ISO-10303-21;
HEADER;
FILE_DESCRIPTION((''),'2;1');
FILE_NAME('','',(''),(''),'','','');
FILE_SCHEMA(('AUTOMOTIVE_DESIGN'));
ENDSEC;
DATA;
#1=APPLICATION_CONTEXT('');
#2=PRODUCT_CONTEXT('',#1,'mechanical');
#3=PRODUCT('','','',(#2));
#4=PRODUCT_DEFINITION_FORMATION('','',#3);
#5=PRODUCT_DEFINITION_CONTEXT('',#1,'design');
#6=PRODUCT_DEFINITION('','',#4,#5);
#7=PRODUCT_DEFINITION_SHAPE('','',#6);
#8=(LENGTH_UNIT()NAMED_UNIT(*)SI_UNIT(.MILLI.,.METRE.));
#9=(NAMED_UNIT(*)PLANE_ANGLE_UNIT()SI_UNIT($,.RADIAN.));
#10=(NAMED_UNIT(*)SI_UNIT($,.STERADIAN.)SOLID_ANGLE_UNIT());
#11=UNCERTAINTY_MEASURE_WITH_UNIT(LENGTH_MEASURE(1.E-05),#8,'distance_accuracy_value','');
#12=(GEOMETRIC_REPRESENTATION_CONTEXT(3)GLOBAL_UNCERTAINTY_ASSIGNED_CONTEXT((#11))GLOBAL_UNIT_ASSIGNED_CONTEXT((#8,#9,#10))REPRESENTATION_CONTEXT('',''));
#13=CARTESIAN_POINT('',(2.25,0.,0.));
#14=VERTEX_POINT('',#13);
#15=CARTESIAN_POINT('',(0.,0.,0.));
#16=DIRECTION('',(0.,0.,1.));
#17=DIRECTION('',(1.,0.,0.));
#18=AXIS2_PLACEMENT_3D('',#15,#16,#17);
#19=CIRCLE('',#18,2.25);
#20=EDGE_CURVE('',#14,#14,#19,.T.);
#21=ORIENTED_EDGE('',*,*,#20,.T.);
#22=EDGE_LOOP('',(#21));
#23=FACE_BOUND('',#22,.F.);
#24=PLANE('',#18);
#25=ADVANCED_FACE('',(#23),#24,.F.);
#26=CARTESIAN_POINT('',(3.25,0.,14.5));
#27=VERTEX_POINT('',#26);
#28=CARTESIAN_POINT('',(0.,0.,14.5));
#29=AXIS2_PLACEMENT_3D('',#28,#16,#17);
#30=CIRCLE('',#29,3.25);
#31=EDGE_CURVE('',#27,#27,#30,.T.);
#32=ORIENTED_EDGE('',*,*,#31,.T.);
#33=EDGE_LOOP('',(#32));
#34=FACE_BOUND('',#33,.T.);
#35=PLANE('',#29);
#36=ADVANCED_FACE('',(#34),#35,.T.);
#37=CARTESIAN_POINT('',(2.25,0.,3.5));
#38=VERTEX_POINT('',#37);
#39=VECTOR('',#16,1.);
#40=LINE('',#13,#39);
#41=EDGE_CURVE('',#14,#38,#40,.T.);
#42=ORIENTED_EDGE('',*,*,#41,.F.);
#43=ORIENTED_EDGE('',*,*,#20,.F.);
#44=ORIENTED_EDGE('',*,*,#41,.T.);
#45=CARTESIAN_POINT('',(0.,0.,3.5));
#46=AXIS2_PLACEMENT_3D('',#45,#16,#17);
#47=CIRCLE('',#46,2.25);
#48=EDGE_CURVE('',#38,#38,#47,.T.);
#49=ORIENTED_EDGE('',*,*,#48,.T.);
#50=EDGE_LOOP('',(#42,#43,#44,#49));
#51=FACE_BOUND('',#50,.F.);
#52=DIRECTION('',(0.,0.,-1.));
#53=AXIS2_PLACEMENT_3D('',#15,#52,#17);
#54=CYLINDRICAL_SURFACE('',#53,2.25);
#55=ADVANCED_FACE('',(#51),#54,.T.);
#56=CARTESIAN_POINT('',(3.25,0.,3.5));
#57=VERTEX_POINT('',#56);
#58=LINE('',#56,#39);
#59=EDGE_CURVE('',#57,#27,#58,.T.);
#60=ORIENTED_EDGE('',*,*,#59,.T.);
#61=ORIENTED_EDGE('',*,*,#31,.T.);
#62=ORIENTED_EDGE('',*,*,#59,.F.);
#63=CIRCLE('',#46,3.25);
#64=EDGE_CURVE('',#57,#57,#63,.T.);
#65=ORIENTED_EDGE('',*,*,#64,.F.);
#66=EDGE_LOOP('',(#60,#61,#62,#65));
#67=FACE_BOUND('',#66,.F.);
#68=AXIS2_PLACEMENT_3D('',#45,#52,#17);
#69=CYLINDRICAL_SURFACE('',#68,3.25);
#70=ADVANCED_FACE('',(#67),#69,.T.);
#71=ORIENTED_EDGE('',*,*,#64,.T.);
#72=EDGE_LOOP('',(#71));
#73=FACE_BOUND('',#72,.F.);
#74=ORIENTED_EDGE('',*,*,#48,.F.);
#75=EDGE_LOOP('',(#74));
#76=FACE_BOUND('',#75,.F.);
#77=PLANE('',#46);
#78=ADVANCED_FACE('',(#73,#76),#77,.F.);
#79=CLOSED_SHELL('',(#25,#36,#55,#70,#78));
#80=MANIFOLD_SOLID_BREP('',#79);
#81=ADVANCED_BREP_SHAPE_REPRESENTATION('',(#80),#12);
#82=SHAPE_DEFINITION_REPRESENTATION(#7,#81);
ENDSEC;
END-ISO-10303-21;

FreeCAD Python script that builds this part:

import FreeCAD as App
import Part
import Sketcher
Q = App.Units.Quantity

doc = App.newDocument("Part")
params = doc.addObject("Spreadsheet::Sheet", "Params")
for row, (alias, value) in enumerate([
    ("sketch1_diameter", "4.5 mm"),
    ("pad1_length", "3.5 mm"),
    ("sketch2_diameter", "6.5 mm"),
    ("pad2_length", "11 mm"),
], start=1):
    params.set(f"A{row}", alias)
    params.set(f"B{row}", "=" + value)
    params.setAlias(f"B{row}", alias)

body = doc.addObject("PartDesign::Body", "Body")

# Sketch on XY plane
sketch1 = body.newObject("Sketcher::SketchObject", "Sketch")
sketch1.AttachmentSupport = (doc.getObject("XY_Plane"), [""])
sketch1.MapMode = "FlatFace"
sketch1.addGeometry(Part.Circle(App.Vector(0, 0, 0), App.Vector(0, 0, 1), 2.2), False)
sketch1.addConstraint([
    Sketcher.Constraint("Coincident", 0, 3, -1, 1),
    Sketcher.Constraint("Diameter", 0, Q("4.5 mm")),
])
sketch1.setExpression("Constraints[1]", "Params.sketch1_diameter")
pad1 = body.newObject("PartDesign::Pad", "Pad")
pad1.Profile = sketch1
pad1.setExpression("Length", "Params.pad1_length")

# Sketch on XY plane
sketch2 = body.newObject("Sketcher::SketchObject", "Sketch001")
sketch2.AttachmentSupport = (doc.getObject("XY_Plane"), [""])
sketch2.MapMode = "FlatFace"
sketch2.AttachmentOffset = App.Placement(App.Vector(0, 0, 3.5), App.Rotation())
sketch2.addGeometry(Part.Circle(App.Vector(0, 0, 0), App.Vector(0, 0, 1), 3.2), False)
sketch2.addConstraint([
    Sketcher.Constraint("Coincident", 0, 3, -1, 1),
    Sketcher.Constraint("Diameter", 0, Q("6.5 mm")),
])
sketch2.setExpression("Constraints[1]", "Params.sketch2_diameter")
pad2 = body.newObject("PartDesign::Pad", "Pad001")
pad2.Profile = sketch2
pad2.setExpression("Length", "Params.pad2_length")

doc.recompute()
